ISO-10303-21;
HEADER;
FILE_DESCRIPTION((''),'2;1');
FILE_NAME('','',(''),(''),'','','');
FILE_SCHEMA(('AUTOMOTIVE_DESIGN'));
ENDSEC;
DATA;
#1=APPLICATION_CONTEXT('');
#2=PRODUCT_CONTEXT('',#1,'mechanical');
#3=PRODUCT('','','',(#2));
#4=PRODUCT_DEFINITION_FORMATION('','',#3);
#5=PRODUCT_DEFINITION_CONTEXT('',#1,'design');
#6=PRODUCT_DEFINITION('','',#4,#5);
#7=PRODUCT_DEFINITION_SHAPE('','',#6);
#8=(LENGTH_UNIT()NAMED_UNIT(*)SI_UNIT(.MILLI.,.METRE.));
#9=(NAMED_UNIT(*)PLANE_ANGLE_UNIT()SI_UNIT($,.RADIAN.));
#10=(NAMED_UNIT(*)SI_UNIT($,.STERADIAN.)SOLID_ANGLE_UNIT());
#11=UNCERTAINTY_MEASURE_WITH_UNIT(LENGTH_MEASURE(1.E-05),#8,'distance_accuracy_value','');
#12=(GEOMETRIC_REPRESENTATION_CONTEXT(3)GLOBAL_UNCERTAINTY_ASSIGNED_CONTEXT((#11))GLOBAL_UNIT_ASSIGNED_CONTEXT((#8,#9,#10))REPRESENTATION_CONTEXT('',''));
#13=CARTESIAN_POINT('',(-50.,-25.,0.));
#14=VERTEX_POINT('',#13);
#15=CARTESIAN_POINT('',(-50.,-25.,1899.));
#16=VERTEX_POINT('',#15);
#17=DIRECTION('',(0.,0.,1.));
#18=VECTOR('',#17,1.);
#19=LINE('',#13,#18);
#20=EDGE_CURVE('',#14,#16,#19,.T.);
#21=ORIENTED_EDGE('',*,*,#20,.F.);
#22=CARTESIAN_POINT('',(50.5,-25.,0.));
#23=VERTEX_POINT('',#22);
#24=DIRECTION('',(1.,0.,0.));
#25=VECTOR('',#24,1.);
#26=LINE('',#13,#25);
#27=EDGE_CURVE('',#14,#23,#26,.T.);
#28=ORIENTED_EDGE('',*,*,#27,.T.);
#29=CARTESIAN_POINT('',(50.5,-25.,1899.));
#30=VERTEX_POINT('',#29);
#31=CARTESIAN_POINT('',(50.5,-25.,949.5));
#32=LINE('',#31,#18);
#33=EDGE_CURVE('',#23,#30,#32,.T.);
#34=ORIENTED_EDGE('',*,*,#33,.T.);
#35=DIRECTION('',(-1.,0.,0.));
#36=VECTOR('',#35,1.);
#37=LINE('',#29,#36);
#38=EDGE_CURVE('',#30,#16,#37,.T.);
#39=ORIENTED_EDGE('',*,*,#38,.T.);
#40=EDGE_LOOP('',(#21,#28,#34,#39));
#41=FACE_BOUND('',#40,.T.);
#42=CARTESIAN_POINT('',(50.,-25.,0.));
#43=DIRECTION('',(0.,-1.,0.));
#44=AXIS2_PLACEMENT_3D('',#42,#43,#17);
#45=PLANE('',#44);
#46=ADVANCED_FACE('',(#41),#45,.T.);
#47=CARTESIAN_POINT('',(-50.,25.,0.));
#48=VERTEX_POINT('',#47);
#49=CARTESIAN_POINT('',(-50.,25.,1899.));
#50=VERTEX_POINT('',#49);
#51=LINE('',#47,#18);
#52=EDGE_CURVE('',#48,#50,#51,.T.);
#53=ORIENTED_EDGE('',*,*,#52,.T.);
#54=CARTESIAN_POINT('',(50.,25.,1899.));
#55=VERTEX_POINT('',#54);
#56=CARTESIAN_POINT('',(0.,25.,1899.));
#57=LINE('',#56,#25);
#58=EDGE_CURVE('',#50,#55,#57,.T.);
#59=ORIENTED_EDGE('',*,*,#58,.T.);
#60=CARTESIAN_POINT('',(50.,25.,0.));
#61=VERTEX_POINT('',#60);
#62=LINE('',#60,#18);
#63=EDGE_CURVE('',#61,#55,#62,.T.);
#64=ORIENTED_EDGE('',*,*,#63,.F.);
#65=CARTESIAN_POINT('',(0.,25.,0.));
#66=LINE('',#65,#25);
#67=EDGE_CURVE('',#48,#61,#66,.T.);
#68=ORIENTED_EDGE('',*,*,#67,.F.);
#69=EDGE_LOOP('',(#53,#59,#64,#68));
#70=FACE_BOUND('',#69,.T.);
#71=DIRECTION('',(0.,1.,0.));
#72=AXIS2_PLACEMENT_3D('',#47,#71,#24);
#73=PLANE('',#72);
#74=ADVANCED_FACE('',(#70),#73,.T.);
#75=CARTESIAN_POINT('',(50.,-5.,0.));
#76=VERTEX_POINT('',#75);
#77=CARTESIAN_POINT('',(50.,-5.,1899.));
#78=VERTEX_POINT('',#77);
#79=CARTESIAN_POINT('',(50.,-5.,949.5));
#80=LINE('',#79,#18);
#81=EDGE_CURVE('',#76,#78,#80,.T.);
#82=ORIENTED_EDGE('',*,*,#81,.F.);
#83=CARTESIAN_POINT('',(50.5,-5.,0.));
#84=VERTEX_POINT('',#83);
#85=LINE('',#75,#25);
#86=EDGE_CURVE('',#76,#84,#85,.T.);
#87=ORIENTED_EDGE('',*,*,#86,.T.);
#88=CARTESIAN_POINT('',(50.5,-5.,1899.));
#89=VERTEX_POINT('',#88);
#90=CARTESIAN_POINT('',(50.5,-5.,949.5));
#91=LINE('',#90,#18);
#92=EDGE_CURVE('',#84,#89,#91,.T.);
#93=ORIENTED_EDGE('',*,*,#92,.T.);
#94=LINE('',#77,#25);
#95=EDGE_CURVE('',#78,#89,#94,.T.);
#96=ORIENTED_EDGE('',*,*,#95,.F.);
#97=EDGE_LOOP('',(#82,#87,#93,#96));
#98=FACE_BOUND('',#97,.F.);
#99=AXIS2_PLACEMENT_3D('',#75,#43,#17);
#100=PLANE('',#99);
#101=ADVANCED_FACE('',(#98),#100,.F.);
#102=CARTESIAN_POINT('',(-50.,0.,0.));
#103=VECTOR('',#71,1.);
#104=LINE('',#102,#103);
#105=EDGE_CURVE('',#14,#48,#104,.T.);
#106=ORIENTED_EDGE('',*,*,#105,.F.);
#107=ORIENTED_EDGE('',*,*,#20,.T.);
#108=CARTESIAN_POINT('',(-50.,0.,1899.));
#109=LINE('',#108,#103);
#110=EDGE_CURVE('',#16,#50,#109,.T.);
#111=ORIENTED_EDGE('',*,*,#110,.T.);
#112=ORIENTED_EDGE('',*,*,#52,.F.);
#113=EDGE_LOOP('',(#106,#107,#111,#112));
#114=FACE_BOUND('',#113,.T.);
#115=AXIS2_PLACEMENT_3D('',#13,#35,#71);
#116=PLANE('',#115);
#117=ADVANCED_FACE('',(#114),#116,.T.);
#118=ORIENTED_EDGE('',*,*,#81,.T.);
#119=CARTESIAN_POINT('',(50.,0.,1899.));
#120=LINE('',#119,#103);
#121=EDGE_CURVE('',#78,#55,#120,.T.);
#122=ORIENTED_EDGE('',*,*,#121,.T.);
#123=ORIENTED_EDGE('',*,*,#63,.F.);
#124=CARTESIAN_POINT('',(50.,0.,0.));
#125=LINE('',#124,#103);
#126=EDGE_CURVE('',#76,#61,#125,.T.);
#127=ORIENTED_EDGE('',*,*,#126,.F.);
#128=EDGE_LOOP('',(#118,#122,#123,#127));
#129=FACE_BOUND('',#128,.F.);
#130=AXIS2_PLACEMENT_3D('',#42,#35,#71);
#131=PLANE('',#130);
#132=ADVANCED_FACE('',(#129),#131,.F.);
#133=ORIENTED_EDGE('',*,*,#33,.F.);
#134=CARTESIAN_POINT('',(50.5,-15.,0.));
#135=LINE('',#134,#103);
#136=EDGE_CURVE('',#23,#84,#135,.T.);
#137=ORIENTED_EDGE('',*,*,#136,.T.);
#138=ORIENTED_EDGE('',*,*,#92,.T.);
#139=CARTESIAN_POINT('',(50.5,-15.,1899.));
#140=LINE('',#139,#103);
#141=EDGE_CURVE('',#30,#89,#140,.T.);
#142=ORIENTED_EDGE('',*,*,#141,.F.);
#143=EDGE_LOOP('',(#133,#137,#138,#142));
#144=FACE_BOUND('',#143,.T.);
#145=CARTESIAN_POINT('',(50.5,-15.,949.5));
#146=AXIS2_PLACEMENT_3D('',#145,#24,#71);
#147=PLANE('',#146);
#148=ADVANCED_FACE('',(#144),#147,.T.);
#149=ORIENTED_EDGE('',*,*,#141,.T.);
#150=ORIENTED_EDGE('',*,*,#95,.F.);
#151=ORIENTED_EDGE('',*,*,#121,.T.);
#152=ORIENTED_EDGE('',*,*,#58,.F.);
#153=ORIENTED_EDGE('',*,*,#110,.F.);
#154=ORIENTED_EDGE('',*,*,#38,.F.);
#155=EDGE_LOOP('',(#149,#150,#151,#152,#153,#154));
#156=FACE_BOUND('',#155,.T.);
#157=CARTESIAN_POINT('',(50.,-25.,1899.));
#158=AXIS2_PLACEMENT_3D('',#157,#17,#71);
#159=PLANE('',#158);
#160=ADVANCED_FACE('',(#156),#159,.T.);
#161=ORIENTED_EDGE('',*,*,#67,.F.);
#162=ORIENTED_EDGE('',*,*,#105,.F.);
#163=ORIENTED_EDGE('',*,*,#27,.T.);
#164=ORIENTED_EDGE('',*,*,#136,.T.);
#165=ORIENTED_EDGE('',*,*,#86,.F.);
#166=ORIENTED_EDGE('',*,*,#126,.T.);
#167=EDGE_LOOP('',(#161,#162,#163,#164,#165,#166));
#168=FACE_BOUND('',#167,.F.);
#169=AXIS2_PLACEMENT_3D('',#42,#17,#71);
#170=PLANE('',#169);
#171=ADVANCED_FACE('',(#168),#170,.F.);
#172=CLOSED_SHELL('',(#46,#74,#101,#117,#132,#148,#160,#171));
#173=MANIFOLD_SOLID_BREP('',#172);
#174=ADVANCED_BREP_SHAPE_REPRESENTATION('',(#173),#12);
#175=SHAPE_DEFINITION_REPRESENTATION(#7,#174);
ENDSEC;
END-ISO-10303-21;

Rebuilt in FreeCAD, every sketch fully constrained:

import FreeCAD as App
import Part
import Sketcher
from FreeCAD import Vector

doc = App.newDocument("Part")
params = doc.addObject("Spreadsheet::Sheet", "Params")
for row, (alias, value) in enumerate([
    ("sketch1_width", "100 mm"),
    ("sketch1_height", "50 mm"),
    ("pad1_length", "1899 mm"),
    ("sketch2_width", "20 mm"),
    ("sketch2_height", "1899 mm"),
    ("pad2_length", "0.5 mm"),
], start=1):
    params.set(f"A{row}", alias)
    params.set(f"B{row}", "=" + value)
    params.setAlias(f"B{row}", alias)

body = doc.addObject("PartDesign::Body", "Body")

# Sketch on XY plane
sketch1 = body.newObject("Sketcher::SketchObject", "Sketch")
sketch1.AttachmentSupport = (doc.getObject("XY_Plane"), [""])
sketch1.MapMode = "FlatFace"
sketch1.addGeometry([
    Part.LineSegment(Vector(-50, 25, 0), Vector(-50, -25, 0)),
    Part.LineSegment(Vector(-50, -25, 0), Vector(50, -25, 0)),
    Part.LineSegment(Vector(50, -25, 0), Vector(50, 25, 0)),
    Part.LineSegment(Vector(50, 25, 0), Vector(-50, 25, 0)),
], False)
sketch1.addConstraint([
    Sketcher.Constraint("Coincident", 0, 2, 1, 1),
    Sketcher.Constraint("Coincident", 1, 2, 2, 1),
    Sketcher.Constraint("Coincident", 2, 2, 3, 1),
    Sketcher.Constraint("Coincident", 3, 2, 0, 1),
    Sketcher.Constraint("Vertical", 0),
    Sketcher.Constraint("Horizontal", 1),
    Sketcher.Constraint("Vertical", 2),
    Sketcher.Constraint("Horizontal", 3),
    Sketcher.Constraint("Symmetric", 0, 2, 2, 2, -1, 1),
    Sketcher.Constraint("DistanceX", 1, 1, 1, 2, 100.0),
    Sketcher.Constraint("DistanceY", 0, 2, 0, 1, 50.0),
])
sketch1.setExpression("Constraints[9]", "Params.sketch1_width")
sketch1.setExpression("Constraints[10]", "Params.sketch1_height")
pad1 = body.newObject("PartDesign::Pad", "Pad")
pad1.Profile = sketch1
pad1.setExpression("Length", "Params.pad1_length")

# Sketch on YZ plane
sketch2 = body.newObject("Sketcher::SketchObject", "Sketch001")
sketch2.AttachmentSupport = (doc.getObject("YZ_Plane"), [""])
sketch2.MapMode = "FlatFace"
sketch2.AttachmentOffset = App.Placement(Vector(0, 0, 50), App.Rotation())
sketch2.addGeometry([
    Part.LineSegment(Vector(-25, 1899, 0), Vector(-25, 0, 0)),
    Part.LineSegment(Vector(-25, 0, 0), Vector(-5, 0, 0)),
    Part.LineSegment(Vector(-5, 0, 0), Vector(-5, 1899, 0)),
    Part.LineSegment(Vector(-5, 1899, 0), Vector(-25, 1899, 0)),
], False)
sketch2.addConstraint([
    Sketcher.Constraint("Coincident", 0, 2, 1, 1),
    Sketcher.Constraint("Coincident", 1, 2, 2, 1),
    Sketcher.Constraint("Coincident", 2, 2, 3, 1),
    Sketcher.Constraint("Coincident", 3, 2, 0, 1),
    Sketcher.Constraint("Vertical", 0),
    Sketcher.Constraint("Horizontal", 1),
    Sketcher.Constraint("Vertical", 2),
    Sketcher.Constraint("Horizontal", 3),
    Sketcher.Constraint("PointOnObject", 0, 2, -1),
    Sketcher.Constraint("DistanceX", 1, 1, 1, 2, 20.0),
    Sketcher.Constraint("DistanceY", 0, 2, 0, 1, 1899.0),
    Sketcher.Constraint("DistanceX", 0, 2, -1, 1, 25.0),
])
sketch2.setExpression("Constraints[9]", "Params.sketch2_width")
sketch2.setExpression("Constraints[10]", "Params.sketch2_height")
pad2 = body.newObject("PartDesign::Pad", "Pad001")
pad2.Profile = sketch2
pad2.setExpression("Length", "Params.pad2_length")

doc.recompute()
